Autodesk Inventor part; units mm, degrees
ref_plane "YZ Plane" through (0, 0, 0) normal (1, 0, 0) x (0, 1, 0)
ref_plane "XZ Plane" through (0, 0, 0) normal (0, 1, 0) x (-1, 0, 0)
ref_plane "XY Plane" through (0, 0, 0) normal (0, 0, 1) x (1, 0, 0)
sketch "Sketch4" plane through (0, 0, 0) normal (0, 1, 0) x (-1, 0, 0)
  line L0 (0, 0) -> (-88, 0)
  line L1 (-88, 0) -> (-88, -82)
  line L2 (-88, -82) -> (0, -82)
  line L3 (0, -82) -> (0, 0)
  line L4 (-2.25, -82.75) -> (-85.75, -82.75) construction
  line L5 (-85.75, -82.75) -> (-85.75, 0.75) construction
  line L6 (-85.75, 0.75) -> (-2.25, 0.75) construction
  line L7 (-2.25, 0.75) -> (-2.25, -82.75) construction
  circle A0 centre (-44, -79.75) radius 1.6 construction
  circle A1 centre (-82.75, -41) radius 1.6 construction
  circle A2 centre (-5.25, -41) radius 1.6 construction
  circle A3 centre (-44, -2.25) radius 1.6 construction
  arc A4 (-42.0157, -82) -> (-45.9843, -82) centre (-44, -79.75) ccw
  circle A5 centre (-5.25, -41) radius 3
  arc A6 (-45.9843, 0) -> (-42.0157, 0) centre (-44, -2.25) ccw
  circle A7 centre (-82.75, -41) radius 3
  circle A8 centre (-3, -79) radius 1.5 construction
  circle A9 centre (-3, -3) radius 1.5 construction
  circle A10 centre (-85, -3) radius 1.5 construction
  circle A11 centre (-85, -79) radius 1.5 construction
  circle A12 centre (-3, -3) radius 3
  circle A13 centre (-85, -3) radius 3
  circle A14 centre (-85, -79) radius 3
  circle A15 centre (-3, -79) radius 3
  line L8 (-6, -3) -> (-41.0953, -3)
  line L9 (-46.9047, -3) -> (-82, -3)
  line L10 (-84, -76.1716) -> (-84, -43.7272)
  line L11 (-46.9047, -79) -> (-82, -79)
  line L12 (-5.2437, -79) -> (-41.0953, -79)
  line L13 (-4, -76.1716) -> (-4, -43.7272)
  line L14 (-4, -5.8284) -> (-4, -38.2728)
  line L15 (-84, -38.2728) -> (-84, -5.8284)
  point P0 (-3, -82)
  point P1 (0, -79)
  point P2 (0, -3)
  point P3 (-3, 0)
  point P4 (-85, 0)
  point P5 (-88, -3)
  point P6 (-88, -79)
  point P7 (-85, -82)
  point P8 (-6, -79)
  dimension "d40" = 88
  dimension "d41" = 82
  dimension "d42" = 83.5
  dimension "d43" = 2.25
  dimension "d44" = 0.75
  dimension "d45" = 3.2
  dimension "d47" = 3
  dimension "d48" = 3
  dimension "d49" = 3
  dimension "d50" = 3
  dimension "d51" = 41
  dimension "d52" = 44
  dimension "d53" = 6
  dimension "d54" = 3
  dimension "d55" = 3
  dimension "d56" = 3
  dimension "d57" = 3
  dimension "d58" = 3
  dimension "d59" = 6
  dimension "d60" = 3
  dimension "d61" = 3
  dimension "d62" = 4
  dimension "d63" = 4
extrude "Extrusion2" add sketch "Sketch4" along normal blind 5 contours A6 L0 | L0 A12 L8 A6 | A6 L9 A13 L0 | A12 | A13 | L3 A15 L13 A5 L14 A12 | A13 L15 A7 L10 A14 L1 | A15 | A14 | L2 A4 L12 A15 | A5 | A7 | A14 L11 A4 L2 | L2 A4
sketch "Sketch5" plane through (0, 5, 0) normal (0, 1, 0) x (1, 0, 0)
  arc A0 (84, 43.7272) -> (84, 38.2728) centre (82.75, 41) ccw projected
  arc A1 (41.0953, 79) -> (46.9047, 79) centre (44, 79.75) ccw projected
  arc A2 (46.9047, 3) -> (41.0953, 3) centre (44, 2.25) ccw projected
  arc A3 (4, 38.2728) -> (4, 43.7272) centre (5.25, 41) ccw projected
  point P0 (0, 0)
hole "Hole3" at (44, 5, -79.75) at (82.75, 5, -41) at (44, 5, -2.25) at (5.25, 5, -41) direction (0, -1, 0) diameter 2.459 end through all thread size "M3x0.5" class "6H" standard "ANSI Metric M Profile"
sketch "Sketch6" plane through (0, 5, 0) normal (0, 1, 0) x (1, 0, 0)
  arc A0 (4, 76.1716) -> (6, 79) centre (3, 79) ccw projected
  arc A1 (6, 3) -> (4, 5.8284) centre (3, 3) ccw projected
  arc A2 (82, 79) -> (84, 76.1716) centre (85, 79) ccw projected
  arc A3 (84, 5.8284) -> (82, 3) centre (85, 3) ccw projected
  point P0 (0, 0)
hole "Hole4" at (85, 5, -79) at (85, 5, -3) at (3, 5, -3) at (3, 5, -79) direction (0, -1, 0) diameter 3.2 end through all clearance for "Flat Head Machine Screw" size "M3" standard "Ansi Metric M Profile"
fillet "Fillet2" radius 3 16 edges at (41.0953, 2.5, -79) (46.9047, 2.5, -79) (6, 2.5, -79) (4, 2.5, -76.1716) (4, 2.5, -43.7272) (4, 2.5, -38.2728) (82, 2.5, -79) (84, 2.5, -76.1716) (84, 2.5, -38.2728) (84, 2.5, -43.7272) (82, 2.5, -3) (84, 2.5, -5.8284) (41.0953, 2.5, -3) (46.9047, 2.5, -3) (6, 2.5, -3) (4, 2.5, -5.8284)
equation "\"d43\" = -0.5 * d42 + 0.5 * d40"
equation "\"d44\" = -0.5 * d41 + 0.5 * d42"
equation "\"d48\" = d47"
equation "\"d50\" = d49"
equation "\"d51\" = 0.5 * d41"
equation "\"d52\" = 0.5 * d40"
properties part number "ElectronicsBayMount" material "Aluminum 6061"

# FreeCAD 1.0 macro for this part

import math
import FreeCAD as App
import Part
import Sketcher
Q = App.Units.Quantity


def edges_at(feature, points):
    """Names of the edges that pass closest to the given points."""
    edges = feature.Shape.Edges
    near = lambda p: min(range(len(edges)), key=lambda i: edges[i].distToShape(Part.Vertex(*p))[0])
    return sorted({f"Edge{near(p) + 1}" for p in points})

doc = App.newDocument("Part")
body = doc.addObject("PartDesign::Body", "Body")

# Sketch on XZ plane
sketch1 = body.newObject("Sketcher::SketchObject", "Sketch")
sketch1.AttachmentSupport = (doc.getObject("XZ_Plane"), [""])
sketch1.MapMode = "FlatFace"
sketch1.addGeometry([
    Part.ArcOfCircle(Part.Circle(App.Vector(85, -3, 0), App.Vector(0, 0, 1), 3), math.radians(0), math.radians(90)),  # 0
    Part.LineSegment(App.Vector(88, -3, 0), App.Vector(88, -79, 0)),  # 1
    Part.ArcOfCircle(Part.Circle(App.Vector(85, -79, 0), App.Vector(0, 0, 1), 3), math.radians(-90), math.radians(0)),  # 2
    Part.LineSegment(App.Vector(85, -82, 0), App.Vector(3, -82, 0)),  # 3
    Part.ArcOfCircle(Part.Circle(App.Vector(3, -79, 0), App.Vector(0, 0, 1), 3), math.radians(180), math.radians(270)),  # 4
    Part.LineSegment(App.Vector(0, -79, 0), App.Vector(0, -3, 0)),  # 5
    Part.ArcOfCircle(Part.Circle(App.Vector(3, -3, 0), App.Vector(0, 0, 1), 3), math.radians(90), math.radians(180)),  # 6
    Part.LineSegment(App.Vector(3, 0, 0), App.Vector(85, 0, 0)),  # 7
    Part.ArcOfCircle(Part.Circle(App.Vector(44, -2.2, 0), App.Vector(0, 0, 1), 3), math.radians(-166), math.radians(-14)),  # 8
    Part.LineSegment(App.Vector(41.1, -3, 0), App.Vector(6, -3, 0)),  # 9
    Part.ArcOfCircle(Part.Circle(App.Vector(3, -3, 0), App.Vector(0, 0, 1), 3), math.radians(-71), math.radians(0)),  # 10
    Part.LineSegment(App.Vector(4, -5.8, 0), App.Vector(4, -38.3, 0)),  # 11
    Part.ArcOfCircle(Part.Circle(App.Vector(5.2, -41, 0), App.Vector(0, 0, 1), 3), math.radians(-115), math.radians(115)),  # 12
    Part.LineSegment(App.Vector(4, -43.7, 0), App.Vector(4, -76.2, 0)),  # 13
    Part.ArcOfCircle(Part.Circle(App.Vector(3, -79, 0), App.Vector(0, 0, 1), 3), math.radians(0), math.radians(71)),  # 14
    Part.LineSegment(App.Vector(6, -79, 0), App.Vector(41.1, -79, 0)),  # 15
    Part.ArcOfCircle(Part.Circle(App.Vector(44, -79.8, 0), App.Vector(0, 0, 1), 3), math.radians(14), math.radians(166)),  # 16
    Part.LineSegment(App.Vector(46.9, -79, 0), App.Vector(82, -79, 0)),  # 17
    Part.ArcOfCircle(Part.Circle(App.Vector(85, -79, 0), App.Vector(0, 0, 1), 3), math.radians(109), math.radians(180)),  # 18
    Part.LineSegment(App.Vector(84, -76.2, 0), App.Vector(84, -43.7, 0)),  # 19
    Part.ArcOfCircle(Part.Circle(App.Vector(82.8, -41, 0), App.Vector(0, 0, 1), 3), math.radians(65), math.radians(295)),  # 20
    Part.LineSegment(App.Vector(84, -38.3, 0), App.Vector(84, -5.8, 0)),  # 21
    Part.ArcOfCircle(Part.Circle(App.Vector(85, -3, 0), App.Vector(0, 0, 1), 3), math.radians(180), math.radians(251)),  # 22
    Part.LineSegment(App.Vector(82, -3, 0), App.Vector(46.9, -3, 0)),  # 23
], False)
sketch1.addConstraint([
    Sketcher.Constraint("Tangent", 0, 1, 1, 1),
    Sketcher.Constraint("Tangent", 1, 2, 2, 2),
    Sketcher.Constraint("Tangent", 2, 1, 3, 1),
    Sketcher.Constraint("Tangent", 3, 2, 4, 2),
    Sketcher.Constraint("Tangent", 4, 1, 5, 1),
    Sketcher.Constraint("Tangent", 5, 2, 6, 2),
    Sketcher.Constraint("Tangent", 6, 1, 7, 1),
    Sketcher.Constraint("Tangent", 7, 2, 0, 2),
    Sketcher.Constraint("Coincident", 8, 1, 9, 1),
    Sketcher.Constraint("Coincident", 9, 2, 10, 2),
    Sketcher.Constraint("Coincident", 10, 1, 11, 1),
    Sketcher.Constraint("Coincident", 11, 2, 12, 2),
    Sketcher.Constraint("Coincident", 12, 1, 13, 1),
    Sketcher.Constraint("Coincident", 13, 2, 14, 2),
    Sketcher.Constraint("Coincident", 14, 1, 15, 1),
    Sketcher.Constraint("Coincident", 15, 2, 16, 2),
    Sketcher.Constraint("Coincident", 16, 1, 17, 1),
    Sketcher.Constraint("Coincident", 17, 2, 18, 2),
    Sketcher.Constraint("Coincident", 18, 1, 19, 1),
    Sketcher.Constraint("Coincident", 19, 2, 20, 2),
    Sketcher.Constraint("Coincident", 20, 1, 21, 1),
    Sketcher.Constraint("Coincident", 21, 2, 22, 2),
    Sketcher.Constraint("Coincident", 22, 1, 23, 1),
    Sketcher.Constraint("Coincident", 23, 2, 8, 2),
    Sketcher.Constraint("Vertical", 1),
    Sketcher.Constraint("Horizontal", 3),
    Sketcher.Constraint("Vertical", 5),
    Sketcher.Constraint("Horizontal", 7),
    Sketcher.Constraint("Horizontal", 9),
    Sketcher.Constraint("Vertical", 11),
    Sketcher.Constraint("Vertical", 13),
    Sketcher.Constraint("Horizontal", 15),
    Sketcher.Constraint("Horizontal", 17),
    Sketcher.Constraint("Vertical", 19),
    Sketcher.Constraint("Vertical", 21),
    Sketcher.Constraint("Horizontal", 23),
    Sketcher.Constraint("Coincident", 10, 3, 6, 3),
    Sketcher.Constraint("Coincident", 14, 3, 4, 3),
    Sketcher.Constraint("Coincident", 18, 3, 2, 3),
    Sketcher.Constraint("Coincident", 22, 3, 0, 3),
    Sketcher.Constraint("Equal", 0, 2),
    Sketcher.Constraint("Equal", 2, 4),
    Sketcher.Constraint("Equal", 4, 6),
    Sketcher.Constraint("Equal", 6, 8),
    Sketcher.Constraint("Equal", 8, 10),
    Sketcher.Constraint("Equal", 10, 12),
    Sketcher.Constraint("Equal", 12, 14),
    Sketcher.Constraint("Equal", 14, 16),
    Sketcher.Constraint("Equal", 16, 18),
    Sketcher.Constraint("Equal", 18, 20),
    Sketcher.Constraint("Equal", 20, 22),
    Sketcher.Constraint("PointOnObject", 4, 1, -2),
    Sketcher.Constraint("PointOnObject", 6, 1, -1),
    Sketcher.Constraint("Horizontal", 12, 3, 20, 3),
    Sketcher.Constraint("Horizontal", 5, 2, 8, 1),
    Sketcher.Constraint("Horizontal", 4, 1, 14, 1),
    Sketcher.Constraint("Horizontal", 15, 2, 16, 1),
    Sketcher.Constraint("Horizontal", 13, 2, 18, 1),
    Sketcher.Constraint("Horizontal", 12, 1, 19, 2),
    Sketcher.Constraint("Horizontal", 11, 2, 20, 1),
    Sketcher.Constraint("Horizontal", 9, 2, 22, 1),
    Sketcher.Constraint("Vertical", 8, 3, 16, 3),
    Sketcher.Constraint("Vertical", 11, 2, 12, 1),
    Sketcher.Constraint("Vertical", 8, 1, 15, 2),
    Sketcher.Constraint("Equal", 15, 17),
    Sketcher.Constraint("Equal", 11, 13),
    Sketcher.Constraint("Radius", 0, Q("3 mm")),
    Sketcher.Constraint("DistanceX", 3, 2, 3, 1, Q("82 mm")),
    Sketcher.Constraint("DistanceY", 12, 3, -1, 1, Q("41 mm")),
    Sketcher.Constraint("DistanceX", -1, 1, 10, 1, Q("4 mm")),
    Sketcher.Constraint("DistanceY", 8, 3, -1, 1, Q("2.25 mm")),
    Sketcher.Constraint("DistanceX", 4, 3, 12, 3, Q("2.25 mm")),
])
pad1 = body.newObject("PartDesign::Pad", "Pad")
pad1.Profile = sketch1
pad1.Length = 5
pad1.Reversed = True

# Sketch on XZ plane
sketch2 = body.newObject("Sketcher::SketchObject", "Sketch001")
sketch2.AttachmentSupport = (doc.getObject("XZ_Plane"), [""])
sketch2.MapMode = "FlatFace"
sketch2.AttachmentOffset = App.Placement(App.Vector(0, 0, -5), App.Rotation())
sketch2.addGeometry([
    Part.Circle(App.Vector(44, -79.8, 0), App.Vector(0, 0, 1), 1.2),
    Part.Circle(App.Vector(82.8, -41, 0), App.Vector(0, 0, 1), 1.2),
    Part.Circle(App.Vector(44, -2.2, 0), App.Vector(0, 0, 1), 1.2),
    Part.Circle(App.Vector(5.2, -41, 0), App.Vector(0, 0, 1), 1.2),
], False)
sketch2.addConstraint([
    Sketcher.Constraint("Equal", 0, 1),
    Sketcher.Constraint("Equal", 1, 2),
    Sketcher.Constraint("Equal", 2, 3),
    Sketcher.Constraint("Horizontal", 1, 3, 3, 3),
    Sketcher.Constraint("Vertical", 0, 3, 2, 3),
    Sketcher.Constraint("Diameter", 0, Q("2.459 mm")),
    Sketcher.Constraint("DistanceX", -1, 1, 0, 3, Q("44 mm")),
    Sketcher.Constraint("DistanceY", 1, 3, -1, 1, Q("41 mm")),
    Sketcher.Constraint("DistanceY", 0, 3, 2, 3, Q("77.5 mm")),
    Sketcher.Constraint("DistanceX", 3, 3, 1, 3, Q("77.5 mm")),
    Sketcher.Constraint("DistanceY", 0, 3, -1, 1, Q("79.75 mm")),
    Sketcher.Constraint("DistanceX", -1, 1, 1, 3, Q("82.75 mm")),
])
doc.recompute()
hole = body.newObject("PartDesign::Hole", "Hole")
hole.Profile = sketch2
hole.ThreadType = "None"
hole.Diameter = 2.459
hole.DepthType = "ThroughAll"
hole.Reversed = True

# Sketch on XZ plane
sketch3 = body.newObject("Sketcher::SketchObject", "Sketch002")
sketch3.AttachmentSupport = (doc.getObject("XZ_Plane"), [""])
sketch3.MapMode = "FlatFace"
sketch3.AttachmentOffset = App.Placement(App.Vector(0, 0, -5), App.Rotation())
sketch3.addGeometry([
    Part.Circle(App.Vector(85, -79, 0), App.Vector(0, 0, 1), 1.6),
    Part.Circle(App.Vector(85, -3, 0), App.Vector(0, 0, 1), 1.6),
    Part.Circle(App.Vector(3, -3, 0), App.Vector(0, 0, 1), 1.6),
    Part.Circle(App.Vector(3, -79, 0), App.Vector(0, 0, 1), 1.6),
], False)
sketch3.addConstraint([
    Sketcher.Constraint("Equal", 0, 1),
    Sketcher.Constraint("Equal", 1, 2),
    Sketcher.Constraint("Equal", 2, 3),
    Sketcher.Constraint("Horizontal", 1, 3, 2, 3),
    Sketcher.Constraint("Horizontal", 0, 3, 3, 3),
    Sketcher.Constraint("Vertical", 0, 3, 1, 3),
    Sketcher.Constraint("Vertical", 2, 3, 3, 3),
    Sketcher.Constraint("Diameter", 0, Q("3.2 mm")),
    Sketcher.Constraint("DistanceX", -1, 1, 0, 3, Q("85 mm")),
    Sketcher.Constraint("DistanceY", 0, 3, -1, 1, Q("79 mm")),
    Sketcher.Constraint("DistanceY", 1, 3, -1, 1, Q("3 mm")),
    Sketcher.Constraint("DistanceX", -1, 1, 2, 3, Q("3 mm")),
])
doc.recompute()
hole2 = body.newObject("PartDesign::Hole", "Hole001")
hole2.Profile = sketch3
hole2.ThreadType = "None"
hole2.Diameter = 3.2
hole2.DepthType = "ThroughAll"
hole2.Reversed = True
doc.recompute()

fillet = body.newObject("PartDesign::Fillet", "Fillet")
fillet.Base = (hole2, edges_at(hole2, [
    (41.095, 2.5, -79),
    (46.905, 2.5, -79),
    (6, 2.5, -79),
    (4, 2.5, -76.172),
    (4, 2.5, -43.727),
    (4, 2.5, -38.273),
    (82, 2.5, -79),
    (84, 2.5, -76.172),
    (84, 2.5, -38.273),
    (84, 2.5, -43.727),
    (82, 2.5, -3),
    (84, 2.5, -5.828),
    (41.095, 2.5, -3),
    (46.905, 2.5, -3),
    (6, 2.5, -3),
    (4, 2.5, -5.828),
]))
fillet.Radius = 3

doc.recompute()
